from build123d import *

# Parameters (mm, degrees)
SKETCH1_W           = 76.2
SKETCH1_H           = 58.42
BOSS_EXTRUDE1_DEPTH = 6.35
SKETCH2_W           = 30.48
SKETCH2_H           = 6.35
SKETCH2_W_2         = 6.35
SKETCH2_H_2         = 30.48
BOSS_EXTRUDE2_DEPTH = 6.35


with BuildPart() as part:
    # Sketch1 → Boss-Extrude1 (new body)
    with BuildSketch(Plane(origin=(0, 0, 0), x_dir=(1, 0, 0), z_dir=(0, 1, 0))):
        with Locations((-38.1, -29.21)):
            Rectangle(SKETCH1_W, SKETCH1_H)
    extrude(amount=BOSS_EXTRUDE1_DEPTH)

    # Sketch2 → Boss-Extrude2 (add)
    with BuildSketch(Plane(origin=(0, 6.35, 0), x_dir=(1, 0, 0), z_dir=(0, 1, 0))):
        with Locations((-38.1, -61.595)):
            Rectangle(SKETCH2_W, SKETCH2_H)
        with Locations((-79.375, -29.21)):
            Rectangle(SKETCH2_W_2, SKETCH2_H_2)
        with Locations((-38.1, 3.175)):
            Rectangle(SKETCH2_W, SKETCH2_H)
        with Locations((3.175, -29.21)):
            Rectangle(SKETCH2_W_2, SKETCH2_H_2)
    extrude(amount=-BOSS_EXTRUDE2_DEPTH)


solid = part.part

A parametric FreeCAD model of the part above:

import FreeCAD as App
import Part
import Sketcher
Q = App.Units.Quantity

doc = App.newDocument("Part")
params = doc.addObject("Spreadsheet::Sheet", "Params")
for row, (alias, value) in enumerate([
    ("sketch1_width", "3 in"),
    ("sketch1_height", "2.3 in"),
    ("pad1_length", "0.25 in"),
    ("sketch2_width", "1.2 in"),
    ("sketch2_width2", "0.25 in"),
    ("pad2_length", "0.25 in"),
], start=1):
    params.set(f"A{row}", alias)
    params.set(f"B{row}", "=" + value)
    params.setAlias(f"B{row}", alias)

body = doc.addObject("PartDesign::Body", "Body")

# Sketch on XZ plane
sketch1 = doc.addObject("Sketcher::SketchObject", "Sketch")
body.addObject(sketch1)
sketch1.AttachmentSupport = (doc.XZ_Plane, [""])
sketch1.MapMode = "FlatFace"
sketch1.addGeometry(Part.LineSegment(App.Vector(-76, 0, 0), App.Vector(-76, 58, 0)), False)
sketch1.addGeometry(Part.LineSegment(App.Vector(-76, 58, 0), App.Vector(0, 58, 0)), False)
sketch1.addGeometry(Part.LineSegment(App.Vector(0, 58, 0), App.Vector(0, 0, 0)), False)
sketch1.addGeometry(Part.LineSegment(App.Vector(0, 0, 0), App.Vector(-76, 0, 0)), False)
sketch1.addConstraint(Sketcher.Constraint("Coincident", 0, 2, 1, 1))
sketch1.addConstraint(Sketcher.Constraint("Coincident", 1, 2, 2, 1))
sketch1.addConstraint(Sketcher.Constraint("Coincident", 2, 2, 3, 1))
sketch1.addConstraint(Sketcher.Constraint("Coincident", 3, 2, 0, 1))
sketch1.addConstraint(Sketcher.Constraint("Vertical", 0))
sketch1.addConstraint(Sketcher.Constraint("Horizontal", 1))
sketch1.addConstraint(Sketcher.Constraint("Vertical", 2))
sketch1.addConstraint(Sketcher.Constraint("Horizontal", 3))
sketch1.addConstraint(Sketcher.Constraint("Coincident", 2, 2, -1, 1))
sketch1.addConstraint(Sketcher.Constraint("DistanceX", 1, 1, 1, 2, Q("3 in")))
sketch1.addConstraint(Sketcher.Constraint("DistanceY", 0, 1, 0, 2, Q("2.3 in")))
sketch1.setExpression("Constraints[9]", "Params.sketch1_width")
sketch1.setExpression("Constraints[10]", "Params.sketch1_height")
pad1 = doc.addObject("PartDesign::Pad", "Pad")
body.addObject(pad1)
pad1.Profile = sketch1
pad1.setExpression("Length", "Params.pad1_length")
pad1.Reversed = True

# Sketch on XZ plane
sketch2 = doc.addObject("Sketcher::SketchObject", "Sketch001")
body.addObject(sketch2)
sketch2.AttachmentSupport = (doc.XZ_Plane, [""])
sketch2.MapMode = "FlatFace"
sketch2.AttachmentOffset = App.Placement(App.Vector(0, 0, -0.25 * 25.4), App.Rotation())
sketch2.addGeometry(Part.LineSegment(App.Vector(-53, 58, 0), App.Vector(-53, 65, 0)), False)
sketch2.addGeometry(Part.LineSegment(App.Vector(-53, 65, 0), App.Vector(-23, 65, 0)), False)
sketch2.addGeometry(Part.LineSegment(App.Vector(-23, 65, 0), App.Vector(-23, 58, 0)), False)
sketch2.addGeometry(Part.LineSegment(App.Vector(-23, 58, 0), App.Vector(-53, 58, 0)), False)
sketch2.addGeometry(Part.LineSegment(App.Vector(-83, 14, 0), App.Vector(-83, 44, 0)), False)
sketch2.addGeometry(Part.LineSegment(App.Vector(-83, 44, 0), App.Vector(-76, 44, 0)), False)
sketch2.addGeometry(Part.LineSegment(App.Vector(-76, 44, 0), App.Vector(-76, 14, 0)), False)
sketch2.addGeometry(Part.LineSegment(App.Vector(-76, 14, 0), App.Vector(-83, 14, 0)), False)
sketch2.addGeometry(Part.LineSegment(App.Vector(-53, -6, 0), App.Vector(-53, 0, 0)), False)
sketch2.addGeometry(Part.LineSegment(App.Vector(-53, 0, 0), App.Vector(-23, 0, 0)), False)
sketch2.addGeometry(Part.LineSegment(App.Vector(-23, 0, 0), App.Vector(-23, -6, 0)), False)
sketch2.addGeometry(Part.LineSegment(App.Vector(-23, -6, 0), App.Vector(-53, -6, 0)), False)
sketch2.addGeometry(Part.LineSegment(App.Vector(0, 14, 0), App.Vector(0, 44, 0)), False)
sketch2.addGeometry(Part.LineSegment(App.Vector(0, 44, 0), App.Vector(6, 44, 0)), False)
sketch2.addGeometry(Part.LineSegment(App.Vector(6, 44, 0), App.Vector(6, 14, 0)), False)
sketch2.addGeometry(Part.LineSegment(App.Vector(6, 14, 0), App.Vector(0, 14, 0)), False)
sketch2.addConstraint(Sketcher.Constraint("Coincident", 0, 2, 1, 1))
sketch2.addConstraint(Sketcher.Constraint("Coincident", 1, 2, 2, 1))
sketch2.addConstraint(Sketcher.Constraint("Coincident", 2, 2, 3, 1))
sketch2.addConstraint(Sketcher.Constraint("Coincident", 3, 2, 0, 1))
sketch2.addConstraint(Sketcher.Constraint("Coincident", 4, 2, 5, 1))
sketch2.addConstraint(Sketcher.Constraint("Coincident", 5, 2, 6, 1))
sketch2.addConstraint(Sketcher.Constraint("Coincident", 6, 2, 7, 1))
sketch2.addConstraint(Sketcher.Constraint("Coincident", 7, 2, 4, 1))
sketch2.addConstraint(Sketcher.Constraint("Coincident", 8, 2, 9, 1))
sketch2.addConstraint(Sketcher.Constraint("Coincident", 9, 2, 10, 1))
sketch2.addConstraint(Sketcher.Constraint("Coincident", 10, 2, 11, 1))
sketch2.addConstraint(Sketcher.Constraint("Coincident", 11, 2, 8, 1))
sketch2.addConstraint(Sketcher.Constraint("Coincident", 12, 2, 13, 1))
sketch2.addConstraint(Sketcher.Constraint("Coincident", 13, 2, 14, 1))
sketch2.addConstraint(Sketcher.Constraint("Coincident", 14, 2, 15, 1))
sketch2.addConstraint(Sketcher.Constraint("Coincident", 15, 2, 12, 1))
sketch2.addConstraint(Sketcher.Constraint("Vertical", 0))
sketch2.addConstraint(Sketcher.Constraint("Horizontal", 1))
sketch2.addConstraint(Sketcher.Constraint("Vertical", 2))
sketch2.addConstraint(Sketcher.Constraint("Horizontal", 3))
sketch2.addConstraint(Sketcher.Constraint("Vertical", 4))
sketch2.addConstraint(Sketcher.Constraint("Horizontal", 5))
sketch2.addConstraint(Sketcher.Constraint("Vertical", 6))
sketch2.addConstraint(Sketcher.Constraint("Horizontal", 7))
sketch2.addConstraint(Sketcher.Constraint("Vertical", 8))
sketch2.addConstraint(Sketcher.Constraint("Horizontal", 9))
sketch2.addConstraint(Sketcher.Constraint("Vertical", 10))
sketch2.addConstraint(Sketcher.Constraint("Horizontal", 11))
sketch2.addConstraint(Sketcher.Constraint("Vertical", 12))
sketch2.addConstraint(Sketcher.Constraint("Horizontal", 13))
sketch2.addConstraint(Sketcher.Constraint("Vertical", 14))
sketch2.addConstraint(Sketcher.Constraint("Horizontal", 15))
sketch2.addConstraint(Sketcher.Constraint("PointOnObject", 8, 2, -1))
sketch2.addConstraint(Sketcher.Constraint("PointOnObject", 12, 2, -2))
sketch2.addConstraint(Sketcher.Constraint("Horizontal", 5, 2, 12, 2))
sketch2.addConstraint(Sketcher.Constraint("Horizontal", 7, 2, 14, 2))
sketch2.addConstraint(Sketcher.Constraint("Vertical", 3, 2, 8, 2))
sketch2.addConstraint(Sketcher.Constraint("Vertical", 2, 2, 9, 2))
sketch2.addConstraint(Sketcher.Constraint("Equal", 7, 13))
sketch2.addConstraint(Sketcher.Constraint("Equal", 15, 0))
sketch2.addConstraint(Sketcher.Constraint("Equal", 11, 4))
sketch2.addConstraint(Sketcher.Constraint("Equal", 2, 8))
sketch2.addConstraint(Sketcher.Constraint("DistanceX", 1, 1, 1, 2, Q("1.2 in")))
sketch2.addConstraint(Sketcher.Constraint("DistanceX", 5, 2, -1, 1, Q("3 in")))
sketch2.addConstraint(Sketcher.Constraint("DistanceY", 6, 2, 0, 2, Q("2 in")))
sketch2.addConstraint(Sketcher.Constraint("DistanceY", 10, 2, 12, 2, Q("2 in")))
sketch2.addConstraint(Sketcher.Constraint("DistanceX", 5, 1, 5, 2, Q("0.25 in")))
sketch2.addConstraint(Sketcher.Constraint("DistanceX", 0, 2, -1, 1, Q("2.1 in")))
sketch2.setExpression("Constraints[42]", "Params.sketch2_width")
sketch2.setExpression("Constraints[46]", "Params.sketch2_width2")
pad2 = doc.addObject("PartDesign::Pad", "Pad001")
body.addObject(pad2)
pad2.Profile = sketch2
pad2.setExpression("Length", "Params.pad2_length")

doc.recompute()
